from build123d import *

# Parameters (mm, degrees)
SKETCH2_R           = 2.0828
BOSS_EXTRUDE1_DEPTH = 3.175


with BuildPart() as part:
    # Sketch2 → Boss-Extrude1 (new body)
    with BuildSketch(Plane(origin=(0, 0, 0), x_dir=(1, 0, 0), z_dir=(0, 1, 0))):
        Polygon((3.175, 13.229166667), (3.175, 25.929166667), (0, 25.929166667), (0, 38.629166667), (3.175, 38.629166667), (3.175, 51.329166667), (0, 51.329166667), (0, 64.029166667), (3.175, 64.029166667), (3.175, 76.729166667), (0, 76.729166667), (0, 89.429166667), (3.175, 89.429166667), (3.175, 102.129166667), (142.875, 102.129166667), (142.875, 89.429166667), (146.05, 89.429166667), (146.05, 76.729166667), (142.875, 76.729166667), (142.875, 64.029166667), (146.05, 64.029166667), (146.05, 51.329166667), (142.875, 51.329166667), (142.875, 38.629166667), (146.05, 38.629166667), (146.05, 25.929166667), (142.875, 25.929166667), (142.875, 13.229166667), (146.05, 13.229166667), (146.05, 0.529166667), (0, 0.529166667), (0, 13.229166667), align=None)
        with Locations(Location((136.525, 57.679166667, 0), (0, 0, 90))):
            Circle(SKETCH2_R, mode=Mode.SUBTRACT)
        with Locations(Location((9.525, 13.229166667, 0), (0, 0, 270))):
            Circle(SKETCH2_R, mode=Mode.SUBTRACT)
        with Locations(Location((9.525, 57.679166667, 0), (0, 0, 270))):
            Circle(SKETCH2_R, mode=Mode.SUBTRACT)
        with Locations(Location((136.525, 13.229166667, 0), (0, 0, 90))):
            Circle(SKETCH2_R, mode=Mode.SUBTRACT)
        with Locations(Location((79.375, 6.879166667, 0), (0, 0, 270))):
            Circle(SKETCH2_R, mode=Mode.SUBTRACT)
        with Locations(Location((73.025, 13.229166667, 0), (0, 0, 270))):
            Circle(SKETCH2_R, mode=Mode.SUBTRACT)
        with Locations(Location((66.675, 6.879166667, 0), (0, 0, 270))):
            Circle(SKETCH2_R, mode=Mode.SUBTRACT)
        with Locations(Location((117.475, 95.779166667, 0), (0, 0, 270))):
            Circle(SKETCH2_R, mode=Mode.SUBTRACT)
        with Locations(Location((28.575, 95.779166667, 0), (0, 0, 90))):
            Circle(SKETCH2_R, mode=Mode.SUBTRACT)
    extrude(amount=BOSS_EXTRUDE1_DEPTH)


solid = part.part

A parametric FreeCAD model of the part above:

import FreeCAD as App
import Part
import Sketcher
from FreeCAD import Vector
Q = App.Units.Quantity


def add_polygon(sketch, points):
    """Adds a closed chain of lines whose ends are joined by coincident constraints."""
    first, n = sketch.GeometryCount, len(points)
    for a, b in zip(points, points[1:] + points[:1]):
        sketch.addGeometry(Part.LineSegment(App.Vector(*a, 0), App.Vector(*b, 0)), False)
    for i in range(n):
        sketch.addConstraint(Sketcher.Constraint("Coincident", first + i, 2, first + (i + 1) % n, 1))

doc = App.newDocument("Part")
body = doc.addObject("PartDesign::Body", "Body")

# Sketch on XZ plane
sketch1 = body.newObject("Sketcher::SketchObject", "Sketch")
sketch1.AttachmentSupport = (doc.getObject("XZ_Plane"), [""])
sketch1.MapMode = "FlatFace"
add_polygon(sketch1, [(3.175, -25.929167), (3.175, -13.229167), (0, -13.229167), (0, -0.529167), (146.05, -0.529167), (146.05, -13.229167), (142.875, -13.229167), (142.875, -25.929167), (146.05, -25.929167), (146.05, -38.629167), (142.875, -38.629167), (142.875, -51.329167), (146.05, -51.329167), (146.05, -64.029167), (142.875, -64.029167), (142.875, -76.729167), (146.05, -76.729167), (146.05, -89.429167), (142.875, -89.429167), (142.875, -102.129167), (3.175, -102.129167), (3.175, -89.429167), (0, -89.429167), (0, -76.729167), (3.175, -76.729167), (3.175, -64.029167), (0, -64.029167), (0, -51.329167), (3.175, -51.329167), (3.175, -38.629167), (0, -38.629167), (0, -25.929167)])  # lines 0-31
sketch1.addGeometry(Part.Circle(Vector(136.525, -13.229167, 0), Vector(0, 0, 1), 2.0828), False)  # 32
sketch1.addGeometry(Part.Circle(Vector(79.375, -6.879167, 0), Vector(0, 0, 1), 2.0828), False)  # 33
sketch1.addGeometry(Part.Circle(Vector(66.675, -6.879167, 0), Vector(0, 0, 1), 2.0828), False)  # 34
sketch1.addGeometry(Part.Circle(Vector(73.025, -13.229167, 0), Vector(0, 0, 1), 2.0828), False)  # 35
sketch1.addGeometry(Part.Circle(Vector(9.525, -13.229167, 0), Vector(0, 0, 1), 2.0828), False)  # 36
sketch1.addGeometry(Part.Circle(Vector(136.525, -57.679167, 0), Vector(0, 0, 1), 2.0828), False)  # 37
sketch1.addGeometry(Part.Circle(Vector(117.475, -95.779167, 0), Vector(0, 0, 1), 2.0828), False)  # 38
sketch1.addGeometry(Part.Circle(Vector(9.525, -57.679167, 0), Vector(0, 0, 1), 2.0828), False)  # 39
sketch1.addGeometry(Part.Circle(Vector(28.575, -95.779167, 0), Vector(0, 0, 1), 2.0828), False)  # 40
sketch1.addConstraint(Sketcher.Constraint("Vertical", 0))
sketch1.addConstraint(Sketcher.Constraint("Horizontal", 1))
sketch1.addConstraint(Sketcher.Constraint("Vertical", 2))
sketch1.addConstraint(Sketcher.Constraint("Horizontal", 3))
sketch1.addConstraint(Sketcher.Constraint("Vertical", 4))
sketch1.addConstraint(Sketcher.Constraint("Horizontal", 5))
sketch1.addConstraint(Sketcher.Constraint("Vertical", 6))
sketch1.addConstraint(Sketcher.Constraint("Horizontal", 7))
sketch1.addConstraint(Sketcher.Constraint("Vertical", 8))
sketch1.addConstraint(Sketcher.Constraint("Horizontal", 9))
sketch1.addConstraint(Sketcher.Constraint("Vertical", 10))
sketch1.addConstraint(Sketcher.Constraint("Horizontal", 11))
sketch1.addConstraint(Sketcher.Constraint("Vertical", 12))
sketch1.addConstraint(Sketcher.Constraint("Horizontal", 13))
sketch1.addConstraint(Sketcher.Constraint("Vertical", 14))
sketch1.addConstraint(Sketcher.Constraint("Horizontal", 15))
sketch1.addConstraint(Sketcher.Constraint("Vertical", 16))
sketch1.addConstraint(Sketcher.Constraint("Horizontal", 17))
sketch1.addConstraint(Sketcher.Constraint("Vertical", 18))
sketch1.addConstraint(Sketcher.Constraint("Horizontal", 19))
sketch1.addConstraint(Sketcher.Constraint("Vertical", 20))
sketch1.addConstraint(Sketcher.Constraint("Horizontal", 21))
sketch1.addConstraint(Sketcher.Constraint("Vertical", 22))
sketch1.addConstraint(Sketcher.Constraint("Horizontal", 23))
sketch1.addConstraint(Sketcher.Constraint("Vertical", 24))
sketch1.addConstraint(Sketcher.Constraint("Horizontal", 25))
sketch1.addConstraint(Sketcher.Constraint("Vertical", 26))
sketch1.addConstraint(Sketcher.Constraint("Horizontal", 27))
sketch1.addConstraint(Sketcher.Constraint("Vertical", 28))
sketch1.addConstraint(Sketcher.Constraint("Horizontal", 29))
sketch1.addConstraint(Sketcher.Constraint("Vertical", 30))
sketch1.addConstraint(Sketcher.Constraint("Horizontal", 31))
sketch1.addConstraint(Sketcher.Constraint("Equal", 32, 33))
sketch1.addConstraint(Sketcher.Constraint("Equal", 33, 34))
sketch1.addConstraint(Sketcher.Constraint("Equal", 34, 35))
sketch1.addConstraint(Sketcher.Constraint("Equal", 35, 36))
sketch1.addConstraint(Sketcher.Constraint("Equal", 36, 37))
sketch1.addConstraint(Sketcher.Constraint("Equal", 37, 38))
sketch1.addConstraint(Sketcher.Constraint("Equal", 38, 39))
sketch1.addConstraint(Sketcher.Constraint("Equal", 39, 40))
sketch1.addConstraint(Sketcher.Constraint("PointOnObject", 1, 2, -2))
sketch1.addConstraint(Sketcher.Constraint("PointOnObject", 21, 2, -2))
sketch1.addConstraint(Sketcher.Constraint("PointOnObject", 25, 2, -2))
sketch1.addConstraint(Sketcher.Constraint("PointOnObject", 29, 2, -2))
sketch1.addConstraint(Sketcher.Constraint("Horizontal", 33, 3, 34, 3))
sketch1.addConstraint(Sketcher.Constraint("Horizontal", 32, 3, 35, 3))
sketch1.addConstraint(Sketcher.Constraint("Horizontal", 35, 3, 36, 3))
sketch1.addConstraint(Sketcher.Constraint("Horizontal", 37, 3, 39, 3))
sketch1.addConstraint(Sketcher.Constraint("Horizontal", 38, 3, 40, 3))
sketch1.addConstraint(Sketcher.Constraint("Horizontal", 36, 3, 0, 2))
sketch1.addConstraint(Sketcher.Constraint("Horizontal", 1, 2, 4, 2))
sketch1.addConstraint(Sketcher.Constraint("Horizontal", 17, 2, 20, 2))
sketch1.addConstraint(Sketcher.Constraint("Horizontal", 15, 2, 22, 2))
sketch1.addConstraint(Sketcher.Constraint("Horizontal", 13, 2, 24, 2))
sketch1.addConstraint(Sketcher.Constraint("Horizontal", 11, 2, 26, 2))
sketch1.addConstraint(Sketcher.Constraint("Horizontal", 9, 2, 28, 2))
sketch1.addConstraint(Sketcher.Constraint("Horizontal", 7, 2, 30, 2))
sketch1.addConstraint(Sketcher.Constraint("Vertical", 32, 3, 37, 3))
sketch1.addConstraint(Sketcher.Constraint("Vertical", 36, 3, 39, 3))
sketch1.addConstraint(Sketcher.Constraint("Vertical", 4, 2, 7, 2))
sketch1.addConstraint(Sketcher.Constraint("Vertical", 6, 2, 9, 2))
sketch1.addConstraint(Sketcher.Constraint("Vertical", 8, 2, 11, 2))
sketch1.addConstraint(Sketcher.Constraint("Vertical", 10, 2, 13, 2))
sketch1.addConstraint(Sketcher.Constraint("Vertical", 12, 2, 15, 2))
sketch1.addConstraint(Sketcher.Constraint("Vertical", 14, 2, 17, 2))
sketch1.addConstraint(Sketcher.Constraint("Vertical", 0, 2, 19, 2))
sketch1.addConstraint(Sketcher.Constraint("Vertical", 20, 2, 23, 2))
sketch1.addConstraint(Sketcher.Constraint("Vertical", 24, 2, 27, 2))
sketch1.addConstraint(Sketcher.Constraint("Equal", 1, 5))
sketch1.addConstraint(Sketcher.Constraint("Equal", 0, 2))
sketch1.addConstraint(Sketcher.Constraint("Equal", 6, 8))
sketch1.addConstraint(Sketcher.Constraint("Equal", 8, 10))
sketch1.addConstraint(Sketcher.Constraint("Equal", 10, 12))
sketch1.addConstraint(Sketcher.Constraint("Equal", 12, 14))
sketch1.addConstraint(Sketcher.Constraint("Equal", 14, 16))
sketch1.addConstraint(Sketcher.Constraint("Equal", 16, 18))
sketch1.addConstraint(Sketcher.Constraint("Diameter", 32, Q("0.164 in")))
sketch1.addConstraint(Sketcher.Constraint("DistanceX", 19, 2, 19, 1, Q("5.5 in")))
sketch1.addConstraint(Sketcher.Constraint("DistanceY", 0, 1, 0, 2, Q("0.5 in")))
sketch1.addConstraint(Sketcher.Constraint("DistanceX", 36, 3, 32, 3, Q("5 in")))
sketch1.addConstraint(Sketcher.Constraint("DistanceY", 37, 3, 33, 3, Q("2 in")))
sketch1.addConstraint(Sketcher.Constraint("DistanceX", 34, 3, 38, 3, Q("2 in")))
sketch1.addConstraint(Sketcher.Constraint("DistanceX", 0, 2, 33, 3, Q("3 in")))
sketch1.addConstraint(Sketcher.Constraint("DistanceX", 38, 3, 18, 2, Q("1 in")))
sketch1.addConstraint(Sketcher.Constraint("DistanceX", 19, 2, 40, 3, Q("1 in")))
sketch1.addConstraint(Sketcher.Constraint("DistanceX", 3, 1, 3, 2, Q("5.75 in")))
sketch1.addConstraint(Sketcher.Constraint("DistanceX", 35, 3, 32, 3, Q("2.5 in")))
sketch1.addConstraint(Sketcher.Constraint("DistanceY", 38, 3, 37, 3, Q("1.5 in")))
sketch1.addConstraint(Sketcher.Constraint("DistanceX", 33, 3, 32, 3, Q("2.25 in")))
sketch1.addConstraint(Sketcher.Constraint("DistanceY", 32, 3, 33, 3, Q("0.25 in")))
sketch1.addConstraint(Sketcher.Constraint("DistanceY", 32, 3, -1, 1, Q("13.229167 mm")))
pad1 = body.newObject("PartDesign::Pad", "Pad")
pad1.Profile = sketch1
pad1.Length = Q("0.125 in")
pad1.Reversed = True

doc.recompute()
